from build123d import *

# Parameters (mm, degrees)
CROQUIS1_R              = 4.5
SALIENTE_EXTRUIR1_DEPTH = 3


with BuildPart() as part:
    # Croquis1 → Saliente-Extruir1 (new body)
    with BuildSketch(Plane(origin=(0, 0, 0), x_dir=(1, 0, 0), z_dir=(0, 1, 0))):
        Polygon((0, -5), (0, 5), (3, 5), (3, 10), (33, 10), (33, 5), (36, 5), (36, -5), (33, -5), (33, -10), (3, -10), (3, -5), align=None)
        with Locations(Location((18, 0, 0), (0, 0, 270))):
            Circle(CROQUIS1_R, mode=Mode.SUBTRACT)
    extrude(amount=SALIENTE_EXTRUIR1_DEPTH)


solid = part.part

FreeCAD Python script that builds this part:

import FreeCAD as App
import Part
import Sketcher
Q = App.Units.Quantity

doc = App.newDocument("Part")
body = doc.addObject("PartDesign::Body", "Body")

# Sketch on XZ plane
sketch1 = doc.addObject("Sketcher::SketchObject", "Sketch")
body.addObject(sketch1)
sketch1.AttachmentSupport = (doc.XZ_Plane, [""])
sketch1.MapMode = "FlatFace"
sketch1.addGeometry([
    Part.LineSegment(App.Vector(0, -5, 0), App.Vector(0, 5, 0)),  # 0
    Part.LineSegment(App.Vector(0, 5, 0), App.Vector(3, 5, 0)),  # 1
    Part.LineSegment(App.Vector(3, 5, 0), App.Vector(3, 10, 0)),  # 2
    Part.LineSegment(App.Vector(3, 10, 0), App.Vector(33, 10, 0)),  # 3
    Part.LineSegment(App.Vector(33, 10, 0), App.Vector(33, 5, 0)),  # 4
    Part.LineSegment(App.Vector(33, 5, 0), App.Vector(36, 5, 0)),  # 5
    Part.LineSegment(App.Vector(36, 5, 0), App.Vector(36, -5, 0)),  # 6
    Part.LineSegment(App.Vector(36, -5, 0), App.Vector(33, -5, 0)),  # 7
    Part.LineSegment(App.Vector(33, -5, 0), App.Vector(33, -10, 0)),  # 8
    Part.LineSegment(App.Vector(33, -10, 0), App.Vector(3, -10, 0)),  # 9
    Part.LineSegment(App.Vector(3, -10, 0), App.Vector(3, -5, 0)),  # 10
    Part.LineSegment(App.Vector(3, -5, 0), App.Vector(0, -5, 0)),  # 11
    Part.Circle(App.Vector(18, 0, 0), App.Vector(0, 0, 1), 4.5),  # 12
], False)
sketch1.addConstraint([
    Sketcher.Constraint("Coincident", 0, 2, 1, 1),
    Sketcher.Constraint("Coincident", 1, 2, 2, 1),
    Sketcher.Constraint("Coincident", 2, 2, 3, 1),
    Sketcher.Constraint("Coincident", 3, 2, 4, 1),
    Sketcher.Constraint("Coincident", 4, 2, 5, 1),
    Sketcher.Constraint("Coincident", 5, 2, 6, 1),
    Sketcher.Constraint("Coincident", 6, 2, 7, 1),
    Sketcher.Constraint("Coincident", 7, 2, 8, 1),
    Sketcher.Constraint("Coincident", 8, 2, 9, 1),
    Sketcher.Constraint("Coincident", 9, 2, 10, 1),
    Sketcher.Constraint("Coincident", 10, 2, 11, 1),
    Sketcher.Constraint("Coincident", 11, 2, 0, 1),
    Sketcher.Constraint("Vertical", 0),
    Sketcher.Constraint("Horizontal", 1),
    Sketcher.Constraint("Vertical", 2),
    Sketcher.Constraint("Horizontal", 3),
    Sketcher.Constraint("Vertical", 4),
    Sketcher.Constraint("Horizontal", 5),
    Sketcher.Constraint("Vertical", 6),
    Sketcher.Constraint("Horizontal", 7),
    Sketcher.Constraint("Vertical", 8),
    Sketcher.Constraint("Horizontal", 9),
    Sketcher.Constraint("Vertical", 10),
    Sketcher.Constraint("Horizontal", 11),
    Sketcher.Constraint("Symmetric", 0, 2, 11, 2, -1, 1),
    Sketcher.Constraint("Symmetric", 4, 2, 7, 2, -1),
    Sketcher.Constraint("Symmetric", 2, 2, 9, 2, -1),
    Sketcher.Constraint("PointOnObject", 12, 3, -1),
    Sketcher.Constraint("Horizontal", 1, 2, 4, 2),
    Sketcher.Constraint("Equal", 1, 5),
    Sketcher.Constraint("Diameter", 12, Q("9 mm")),
    Sketcher.Constraint("DistanceX", 1, 1, 1, 2, Q("3 mm")),
    Sketcher.Constraint("DistanceX", 3, 1, 3, 2, Q("30 mm")),
    Sketcher.Constraint("DistanceY", 0, 1, 0, 2, Q("10 mm")),
    Sketcher.Constraint("DistanceY", 2, 1, 2, 2, Q("5 mm")),
    Sketcher.Constraint("DistanceX", -1, 1, 12, 3, Q("18 mm")),
])
pad1 = doc.addObject("PartDesign::Pad", "Pad")
body.addObject(pad1)
pad1.Profile = sketch1
pad1.Length = 3
pad1.Reversed = True

doc.recompute()
